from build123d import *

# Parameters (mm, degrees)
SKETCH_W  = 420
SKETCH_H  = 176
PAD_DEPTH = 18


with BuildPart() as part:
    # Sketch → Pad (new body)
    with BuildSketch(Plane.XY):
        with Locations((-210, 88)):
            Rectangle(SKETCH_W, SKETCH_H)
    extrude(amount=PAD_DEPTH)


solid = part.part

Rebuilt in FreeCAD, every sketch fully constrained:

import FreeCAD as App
import Part
import Sketcher

V = App.Vector
Q = App.Units.Quantity


def add_polygon(sketch, points):
    """Adds a closed chain of lines whose ends are joined by coincident constraints."""
    first, n = sketch.GeometryCount, len(points)
    for a, b in zip(points, points[1:] + points[:1]):
        sketch.addGeometry(Part.LineSegment(App.Vector(*a, 0), App.Vector(*b, 0)), False)
    for i in range(n):
        sketch.addConstraint(Sketcher.Constraint("Coincident", first + i, 2, first + (i + 1) % n, 1))

doc = App.newDocument("Part")
body = doc.addObject("PartDesign::Body", "Body")

sketch1 = body.newObject("Sketcher::SketchObject", "Sketch")
sketch1.AttachmentSupport = (doc.getObject("XY_Plane"), [""])
sketch1.MapMode = "FlatFace"
add_polygon(sketch1, [(-420, 176), (-420, 0), (0, 0), (0, 176)])
sketch1.addConstraint([
    Sketcher.Constraint("Vertical", 0),
    Sketcher.Constraint("Horizontal", 1),
    Sketcher.Constraint("Vertical", 2),
    Sketcher.Constraint("Horizontal", 3),
    Sketcher.Constraint("Coincident", 1, 2, -1, 1),
    Sketcher.Constraint("DistanceX", 1, 1, 1, 2, Q("420 mm")),
    Sketcher.Constraint("DistanceY", 0, 2, 0, 1, Q("176 mm")),
])
pad1 = body.newObject("PartDesign::Pad", "Pad")
pad1.Profile = sketch1
pad1.Length = 18

doc.recompute()
